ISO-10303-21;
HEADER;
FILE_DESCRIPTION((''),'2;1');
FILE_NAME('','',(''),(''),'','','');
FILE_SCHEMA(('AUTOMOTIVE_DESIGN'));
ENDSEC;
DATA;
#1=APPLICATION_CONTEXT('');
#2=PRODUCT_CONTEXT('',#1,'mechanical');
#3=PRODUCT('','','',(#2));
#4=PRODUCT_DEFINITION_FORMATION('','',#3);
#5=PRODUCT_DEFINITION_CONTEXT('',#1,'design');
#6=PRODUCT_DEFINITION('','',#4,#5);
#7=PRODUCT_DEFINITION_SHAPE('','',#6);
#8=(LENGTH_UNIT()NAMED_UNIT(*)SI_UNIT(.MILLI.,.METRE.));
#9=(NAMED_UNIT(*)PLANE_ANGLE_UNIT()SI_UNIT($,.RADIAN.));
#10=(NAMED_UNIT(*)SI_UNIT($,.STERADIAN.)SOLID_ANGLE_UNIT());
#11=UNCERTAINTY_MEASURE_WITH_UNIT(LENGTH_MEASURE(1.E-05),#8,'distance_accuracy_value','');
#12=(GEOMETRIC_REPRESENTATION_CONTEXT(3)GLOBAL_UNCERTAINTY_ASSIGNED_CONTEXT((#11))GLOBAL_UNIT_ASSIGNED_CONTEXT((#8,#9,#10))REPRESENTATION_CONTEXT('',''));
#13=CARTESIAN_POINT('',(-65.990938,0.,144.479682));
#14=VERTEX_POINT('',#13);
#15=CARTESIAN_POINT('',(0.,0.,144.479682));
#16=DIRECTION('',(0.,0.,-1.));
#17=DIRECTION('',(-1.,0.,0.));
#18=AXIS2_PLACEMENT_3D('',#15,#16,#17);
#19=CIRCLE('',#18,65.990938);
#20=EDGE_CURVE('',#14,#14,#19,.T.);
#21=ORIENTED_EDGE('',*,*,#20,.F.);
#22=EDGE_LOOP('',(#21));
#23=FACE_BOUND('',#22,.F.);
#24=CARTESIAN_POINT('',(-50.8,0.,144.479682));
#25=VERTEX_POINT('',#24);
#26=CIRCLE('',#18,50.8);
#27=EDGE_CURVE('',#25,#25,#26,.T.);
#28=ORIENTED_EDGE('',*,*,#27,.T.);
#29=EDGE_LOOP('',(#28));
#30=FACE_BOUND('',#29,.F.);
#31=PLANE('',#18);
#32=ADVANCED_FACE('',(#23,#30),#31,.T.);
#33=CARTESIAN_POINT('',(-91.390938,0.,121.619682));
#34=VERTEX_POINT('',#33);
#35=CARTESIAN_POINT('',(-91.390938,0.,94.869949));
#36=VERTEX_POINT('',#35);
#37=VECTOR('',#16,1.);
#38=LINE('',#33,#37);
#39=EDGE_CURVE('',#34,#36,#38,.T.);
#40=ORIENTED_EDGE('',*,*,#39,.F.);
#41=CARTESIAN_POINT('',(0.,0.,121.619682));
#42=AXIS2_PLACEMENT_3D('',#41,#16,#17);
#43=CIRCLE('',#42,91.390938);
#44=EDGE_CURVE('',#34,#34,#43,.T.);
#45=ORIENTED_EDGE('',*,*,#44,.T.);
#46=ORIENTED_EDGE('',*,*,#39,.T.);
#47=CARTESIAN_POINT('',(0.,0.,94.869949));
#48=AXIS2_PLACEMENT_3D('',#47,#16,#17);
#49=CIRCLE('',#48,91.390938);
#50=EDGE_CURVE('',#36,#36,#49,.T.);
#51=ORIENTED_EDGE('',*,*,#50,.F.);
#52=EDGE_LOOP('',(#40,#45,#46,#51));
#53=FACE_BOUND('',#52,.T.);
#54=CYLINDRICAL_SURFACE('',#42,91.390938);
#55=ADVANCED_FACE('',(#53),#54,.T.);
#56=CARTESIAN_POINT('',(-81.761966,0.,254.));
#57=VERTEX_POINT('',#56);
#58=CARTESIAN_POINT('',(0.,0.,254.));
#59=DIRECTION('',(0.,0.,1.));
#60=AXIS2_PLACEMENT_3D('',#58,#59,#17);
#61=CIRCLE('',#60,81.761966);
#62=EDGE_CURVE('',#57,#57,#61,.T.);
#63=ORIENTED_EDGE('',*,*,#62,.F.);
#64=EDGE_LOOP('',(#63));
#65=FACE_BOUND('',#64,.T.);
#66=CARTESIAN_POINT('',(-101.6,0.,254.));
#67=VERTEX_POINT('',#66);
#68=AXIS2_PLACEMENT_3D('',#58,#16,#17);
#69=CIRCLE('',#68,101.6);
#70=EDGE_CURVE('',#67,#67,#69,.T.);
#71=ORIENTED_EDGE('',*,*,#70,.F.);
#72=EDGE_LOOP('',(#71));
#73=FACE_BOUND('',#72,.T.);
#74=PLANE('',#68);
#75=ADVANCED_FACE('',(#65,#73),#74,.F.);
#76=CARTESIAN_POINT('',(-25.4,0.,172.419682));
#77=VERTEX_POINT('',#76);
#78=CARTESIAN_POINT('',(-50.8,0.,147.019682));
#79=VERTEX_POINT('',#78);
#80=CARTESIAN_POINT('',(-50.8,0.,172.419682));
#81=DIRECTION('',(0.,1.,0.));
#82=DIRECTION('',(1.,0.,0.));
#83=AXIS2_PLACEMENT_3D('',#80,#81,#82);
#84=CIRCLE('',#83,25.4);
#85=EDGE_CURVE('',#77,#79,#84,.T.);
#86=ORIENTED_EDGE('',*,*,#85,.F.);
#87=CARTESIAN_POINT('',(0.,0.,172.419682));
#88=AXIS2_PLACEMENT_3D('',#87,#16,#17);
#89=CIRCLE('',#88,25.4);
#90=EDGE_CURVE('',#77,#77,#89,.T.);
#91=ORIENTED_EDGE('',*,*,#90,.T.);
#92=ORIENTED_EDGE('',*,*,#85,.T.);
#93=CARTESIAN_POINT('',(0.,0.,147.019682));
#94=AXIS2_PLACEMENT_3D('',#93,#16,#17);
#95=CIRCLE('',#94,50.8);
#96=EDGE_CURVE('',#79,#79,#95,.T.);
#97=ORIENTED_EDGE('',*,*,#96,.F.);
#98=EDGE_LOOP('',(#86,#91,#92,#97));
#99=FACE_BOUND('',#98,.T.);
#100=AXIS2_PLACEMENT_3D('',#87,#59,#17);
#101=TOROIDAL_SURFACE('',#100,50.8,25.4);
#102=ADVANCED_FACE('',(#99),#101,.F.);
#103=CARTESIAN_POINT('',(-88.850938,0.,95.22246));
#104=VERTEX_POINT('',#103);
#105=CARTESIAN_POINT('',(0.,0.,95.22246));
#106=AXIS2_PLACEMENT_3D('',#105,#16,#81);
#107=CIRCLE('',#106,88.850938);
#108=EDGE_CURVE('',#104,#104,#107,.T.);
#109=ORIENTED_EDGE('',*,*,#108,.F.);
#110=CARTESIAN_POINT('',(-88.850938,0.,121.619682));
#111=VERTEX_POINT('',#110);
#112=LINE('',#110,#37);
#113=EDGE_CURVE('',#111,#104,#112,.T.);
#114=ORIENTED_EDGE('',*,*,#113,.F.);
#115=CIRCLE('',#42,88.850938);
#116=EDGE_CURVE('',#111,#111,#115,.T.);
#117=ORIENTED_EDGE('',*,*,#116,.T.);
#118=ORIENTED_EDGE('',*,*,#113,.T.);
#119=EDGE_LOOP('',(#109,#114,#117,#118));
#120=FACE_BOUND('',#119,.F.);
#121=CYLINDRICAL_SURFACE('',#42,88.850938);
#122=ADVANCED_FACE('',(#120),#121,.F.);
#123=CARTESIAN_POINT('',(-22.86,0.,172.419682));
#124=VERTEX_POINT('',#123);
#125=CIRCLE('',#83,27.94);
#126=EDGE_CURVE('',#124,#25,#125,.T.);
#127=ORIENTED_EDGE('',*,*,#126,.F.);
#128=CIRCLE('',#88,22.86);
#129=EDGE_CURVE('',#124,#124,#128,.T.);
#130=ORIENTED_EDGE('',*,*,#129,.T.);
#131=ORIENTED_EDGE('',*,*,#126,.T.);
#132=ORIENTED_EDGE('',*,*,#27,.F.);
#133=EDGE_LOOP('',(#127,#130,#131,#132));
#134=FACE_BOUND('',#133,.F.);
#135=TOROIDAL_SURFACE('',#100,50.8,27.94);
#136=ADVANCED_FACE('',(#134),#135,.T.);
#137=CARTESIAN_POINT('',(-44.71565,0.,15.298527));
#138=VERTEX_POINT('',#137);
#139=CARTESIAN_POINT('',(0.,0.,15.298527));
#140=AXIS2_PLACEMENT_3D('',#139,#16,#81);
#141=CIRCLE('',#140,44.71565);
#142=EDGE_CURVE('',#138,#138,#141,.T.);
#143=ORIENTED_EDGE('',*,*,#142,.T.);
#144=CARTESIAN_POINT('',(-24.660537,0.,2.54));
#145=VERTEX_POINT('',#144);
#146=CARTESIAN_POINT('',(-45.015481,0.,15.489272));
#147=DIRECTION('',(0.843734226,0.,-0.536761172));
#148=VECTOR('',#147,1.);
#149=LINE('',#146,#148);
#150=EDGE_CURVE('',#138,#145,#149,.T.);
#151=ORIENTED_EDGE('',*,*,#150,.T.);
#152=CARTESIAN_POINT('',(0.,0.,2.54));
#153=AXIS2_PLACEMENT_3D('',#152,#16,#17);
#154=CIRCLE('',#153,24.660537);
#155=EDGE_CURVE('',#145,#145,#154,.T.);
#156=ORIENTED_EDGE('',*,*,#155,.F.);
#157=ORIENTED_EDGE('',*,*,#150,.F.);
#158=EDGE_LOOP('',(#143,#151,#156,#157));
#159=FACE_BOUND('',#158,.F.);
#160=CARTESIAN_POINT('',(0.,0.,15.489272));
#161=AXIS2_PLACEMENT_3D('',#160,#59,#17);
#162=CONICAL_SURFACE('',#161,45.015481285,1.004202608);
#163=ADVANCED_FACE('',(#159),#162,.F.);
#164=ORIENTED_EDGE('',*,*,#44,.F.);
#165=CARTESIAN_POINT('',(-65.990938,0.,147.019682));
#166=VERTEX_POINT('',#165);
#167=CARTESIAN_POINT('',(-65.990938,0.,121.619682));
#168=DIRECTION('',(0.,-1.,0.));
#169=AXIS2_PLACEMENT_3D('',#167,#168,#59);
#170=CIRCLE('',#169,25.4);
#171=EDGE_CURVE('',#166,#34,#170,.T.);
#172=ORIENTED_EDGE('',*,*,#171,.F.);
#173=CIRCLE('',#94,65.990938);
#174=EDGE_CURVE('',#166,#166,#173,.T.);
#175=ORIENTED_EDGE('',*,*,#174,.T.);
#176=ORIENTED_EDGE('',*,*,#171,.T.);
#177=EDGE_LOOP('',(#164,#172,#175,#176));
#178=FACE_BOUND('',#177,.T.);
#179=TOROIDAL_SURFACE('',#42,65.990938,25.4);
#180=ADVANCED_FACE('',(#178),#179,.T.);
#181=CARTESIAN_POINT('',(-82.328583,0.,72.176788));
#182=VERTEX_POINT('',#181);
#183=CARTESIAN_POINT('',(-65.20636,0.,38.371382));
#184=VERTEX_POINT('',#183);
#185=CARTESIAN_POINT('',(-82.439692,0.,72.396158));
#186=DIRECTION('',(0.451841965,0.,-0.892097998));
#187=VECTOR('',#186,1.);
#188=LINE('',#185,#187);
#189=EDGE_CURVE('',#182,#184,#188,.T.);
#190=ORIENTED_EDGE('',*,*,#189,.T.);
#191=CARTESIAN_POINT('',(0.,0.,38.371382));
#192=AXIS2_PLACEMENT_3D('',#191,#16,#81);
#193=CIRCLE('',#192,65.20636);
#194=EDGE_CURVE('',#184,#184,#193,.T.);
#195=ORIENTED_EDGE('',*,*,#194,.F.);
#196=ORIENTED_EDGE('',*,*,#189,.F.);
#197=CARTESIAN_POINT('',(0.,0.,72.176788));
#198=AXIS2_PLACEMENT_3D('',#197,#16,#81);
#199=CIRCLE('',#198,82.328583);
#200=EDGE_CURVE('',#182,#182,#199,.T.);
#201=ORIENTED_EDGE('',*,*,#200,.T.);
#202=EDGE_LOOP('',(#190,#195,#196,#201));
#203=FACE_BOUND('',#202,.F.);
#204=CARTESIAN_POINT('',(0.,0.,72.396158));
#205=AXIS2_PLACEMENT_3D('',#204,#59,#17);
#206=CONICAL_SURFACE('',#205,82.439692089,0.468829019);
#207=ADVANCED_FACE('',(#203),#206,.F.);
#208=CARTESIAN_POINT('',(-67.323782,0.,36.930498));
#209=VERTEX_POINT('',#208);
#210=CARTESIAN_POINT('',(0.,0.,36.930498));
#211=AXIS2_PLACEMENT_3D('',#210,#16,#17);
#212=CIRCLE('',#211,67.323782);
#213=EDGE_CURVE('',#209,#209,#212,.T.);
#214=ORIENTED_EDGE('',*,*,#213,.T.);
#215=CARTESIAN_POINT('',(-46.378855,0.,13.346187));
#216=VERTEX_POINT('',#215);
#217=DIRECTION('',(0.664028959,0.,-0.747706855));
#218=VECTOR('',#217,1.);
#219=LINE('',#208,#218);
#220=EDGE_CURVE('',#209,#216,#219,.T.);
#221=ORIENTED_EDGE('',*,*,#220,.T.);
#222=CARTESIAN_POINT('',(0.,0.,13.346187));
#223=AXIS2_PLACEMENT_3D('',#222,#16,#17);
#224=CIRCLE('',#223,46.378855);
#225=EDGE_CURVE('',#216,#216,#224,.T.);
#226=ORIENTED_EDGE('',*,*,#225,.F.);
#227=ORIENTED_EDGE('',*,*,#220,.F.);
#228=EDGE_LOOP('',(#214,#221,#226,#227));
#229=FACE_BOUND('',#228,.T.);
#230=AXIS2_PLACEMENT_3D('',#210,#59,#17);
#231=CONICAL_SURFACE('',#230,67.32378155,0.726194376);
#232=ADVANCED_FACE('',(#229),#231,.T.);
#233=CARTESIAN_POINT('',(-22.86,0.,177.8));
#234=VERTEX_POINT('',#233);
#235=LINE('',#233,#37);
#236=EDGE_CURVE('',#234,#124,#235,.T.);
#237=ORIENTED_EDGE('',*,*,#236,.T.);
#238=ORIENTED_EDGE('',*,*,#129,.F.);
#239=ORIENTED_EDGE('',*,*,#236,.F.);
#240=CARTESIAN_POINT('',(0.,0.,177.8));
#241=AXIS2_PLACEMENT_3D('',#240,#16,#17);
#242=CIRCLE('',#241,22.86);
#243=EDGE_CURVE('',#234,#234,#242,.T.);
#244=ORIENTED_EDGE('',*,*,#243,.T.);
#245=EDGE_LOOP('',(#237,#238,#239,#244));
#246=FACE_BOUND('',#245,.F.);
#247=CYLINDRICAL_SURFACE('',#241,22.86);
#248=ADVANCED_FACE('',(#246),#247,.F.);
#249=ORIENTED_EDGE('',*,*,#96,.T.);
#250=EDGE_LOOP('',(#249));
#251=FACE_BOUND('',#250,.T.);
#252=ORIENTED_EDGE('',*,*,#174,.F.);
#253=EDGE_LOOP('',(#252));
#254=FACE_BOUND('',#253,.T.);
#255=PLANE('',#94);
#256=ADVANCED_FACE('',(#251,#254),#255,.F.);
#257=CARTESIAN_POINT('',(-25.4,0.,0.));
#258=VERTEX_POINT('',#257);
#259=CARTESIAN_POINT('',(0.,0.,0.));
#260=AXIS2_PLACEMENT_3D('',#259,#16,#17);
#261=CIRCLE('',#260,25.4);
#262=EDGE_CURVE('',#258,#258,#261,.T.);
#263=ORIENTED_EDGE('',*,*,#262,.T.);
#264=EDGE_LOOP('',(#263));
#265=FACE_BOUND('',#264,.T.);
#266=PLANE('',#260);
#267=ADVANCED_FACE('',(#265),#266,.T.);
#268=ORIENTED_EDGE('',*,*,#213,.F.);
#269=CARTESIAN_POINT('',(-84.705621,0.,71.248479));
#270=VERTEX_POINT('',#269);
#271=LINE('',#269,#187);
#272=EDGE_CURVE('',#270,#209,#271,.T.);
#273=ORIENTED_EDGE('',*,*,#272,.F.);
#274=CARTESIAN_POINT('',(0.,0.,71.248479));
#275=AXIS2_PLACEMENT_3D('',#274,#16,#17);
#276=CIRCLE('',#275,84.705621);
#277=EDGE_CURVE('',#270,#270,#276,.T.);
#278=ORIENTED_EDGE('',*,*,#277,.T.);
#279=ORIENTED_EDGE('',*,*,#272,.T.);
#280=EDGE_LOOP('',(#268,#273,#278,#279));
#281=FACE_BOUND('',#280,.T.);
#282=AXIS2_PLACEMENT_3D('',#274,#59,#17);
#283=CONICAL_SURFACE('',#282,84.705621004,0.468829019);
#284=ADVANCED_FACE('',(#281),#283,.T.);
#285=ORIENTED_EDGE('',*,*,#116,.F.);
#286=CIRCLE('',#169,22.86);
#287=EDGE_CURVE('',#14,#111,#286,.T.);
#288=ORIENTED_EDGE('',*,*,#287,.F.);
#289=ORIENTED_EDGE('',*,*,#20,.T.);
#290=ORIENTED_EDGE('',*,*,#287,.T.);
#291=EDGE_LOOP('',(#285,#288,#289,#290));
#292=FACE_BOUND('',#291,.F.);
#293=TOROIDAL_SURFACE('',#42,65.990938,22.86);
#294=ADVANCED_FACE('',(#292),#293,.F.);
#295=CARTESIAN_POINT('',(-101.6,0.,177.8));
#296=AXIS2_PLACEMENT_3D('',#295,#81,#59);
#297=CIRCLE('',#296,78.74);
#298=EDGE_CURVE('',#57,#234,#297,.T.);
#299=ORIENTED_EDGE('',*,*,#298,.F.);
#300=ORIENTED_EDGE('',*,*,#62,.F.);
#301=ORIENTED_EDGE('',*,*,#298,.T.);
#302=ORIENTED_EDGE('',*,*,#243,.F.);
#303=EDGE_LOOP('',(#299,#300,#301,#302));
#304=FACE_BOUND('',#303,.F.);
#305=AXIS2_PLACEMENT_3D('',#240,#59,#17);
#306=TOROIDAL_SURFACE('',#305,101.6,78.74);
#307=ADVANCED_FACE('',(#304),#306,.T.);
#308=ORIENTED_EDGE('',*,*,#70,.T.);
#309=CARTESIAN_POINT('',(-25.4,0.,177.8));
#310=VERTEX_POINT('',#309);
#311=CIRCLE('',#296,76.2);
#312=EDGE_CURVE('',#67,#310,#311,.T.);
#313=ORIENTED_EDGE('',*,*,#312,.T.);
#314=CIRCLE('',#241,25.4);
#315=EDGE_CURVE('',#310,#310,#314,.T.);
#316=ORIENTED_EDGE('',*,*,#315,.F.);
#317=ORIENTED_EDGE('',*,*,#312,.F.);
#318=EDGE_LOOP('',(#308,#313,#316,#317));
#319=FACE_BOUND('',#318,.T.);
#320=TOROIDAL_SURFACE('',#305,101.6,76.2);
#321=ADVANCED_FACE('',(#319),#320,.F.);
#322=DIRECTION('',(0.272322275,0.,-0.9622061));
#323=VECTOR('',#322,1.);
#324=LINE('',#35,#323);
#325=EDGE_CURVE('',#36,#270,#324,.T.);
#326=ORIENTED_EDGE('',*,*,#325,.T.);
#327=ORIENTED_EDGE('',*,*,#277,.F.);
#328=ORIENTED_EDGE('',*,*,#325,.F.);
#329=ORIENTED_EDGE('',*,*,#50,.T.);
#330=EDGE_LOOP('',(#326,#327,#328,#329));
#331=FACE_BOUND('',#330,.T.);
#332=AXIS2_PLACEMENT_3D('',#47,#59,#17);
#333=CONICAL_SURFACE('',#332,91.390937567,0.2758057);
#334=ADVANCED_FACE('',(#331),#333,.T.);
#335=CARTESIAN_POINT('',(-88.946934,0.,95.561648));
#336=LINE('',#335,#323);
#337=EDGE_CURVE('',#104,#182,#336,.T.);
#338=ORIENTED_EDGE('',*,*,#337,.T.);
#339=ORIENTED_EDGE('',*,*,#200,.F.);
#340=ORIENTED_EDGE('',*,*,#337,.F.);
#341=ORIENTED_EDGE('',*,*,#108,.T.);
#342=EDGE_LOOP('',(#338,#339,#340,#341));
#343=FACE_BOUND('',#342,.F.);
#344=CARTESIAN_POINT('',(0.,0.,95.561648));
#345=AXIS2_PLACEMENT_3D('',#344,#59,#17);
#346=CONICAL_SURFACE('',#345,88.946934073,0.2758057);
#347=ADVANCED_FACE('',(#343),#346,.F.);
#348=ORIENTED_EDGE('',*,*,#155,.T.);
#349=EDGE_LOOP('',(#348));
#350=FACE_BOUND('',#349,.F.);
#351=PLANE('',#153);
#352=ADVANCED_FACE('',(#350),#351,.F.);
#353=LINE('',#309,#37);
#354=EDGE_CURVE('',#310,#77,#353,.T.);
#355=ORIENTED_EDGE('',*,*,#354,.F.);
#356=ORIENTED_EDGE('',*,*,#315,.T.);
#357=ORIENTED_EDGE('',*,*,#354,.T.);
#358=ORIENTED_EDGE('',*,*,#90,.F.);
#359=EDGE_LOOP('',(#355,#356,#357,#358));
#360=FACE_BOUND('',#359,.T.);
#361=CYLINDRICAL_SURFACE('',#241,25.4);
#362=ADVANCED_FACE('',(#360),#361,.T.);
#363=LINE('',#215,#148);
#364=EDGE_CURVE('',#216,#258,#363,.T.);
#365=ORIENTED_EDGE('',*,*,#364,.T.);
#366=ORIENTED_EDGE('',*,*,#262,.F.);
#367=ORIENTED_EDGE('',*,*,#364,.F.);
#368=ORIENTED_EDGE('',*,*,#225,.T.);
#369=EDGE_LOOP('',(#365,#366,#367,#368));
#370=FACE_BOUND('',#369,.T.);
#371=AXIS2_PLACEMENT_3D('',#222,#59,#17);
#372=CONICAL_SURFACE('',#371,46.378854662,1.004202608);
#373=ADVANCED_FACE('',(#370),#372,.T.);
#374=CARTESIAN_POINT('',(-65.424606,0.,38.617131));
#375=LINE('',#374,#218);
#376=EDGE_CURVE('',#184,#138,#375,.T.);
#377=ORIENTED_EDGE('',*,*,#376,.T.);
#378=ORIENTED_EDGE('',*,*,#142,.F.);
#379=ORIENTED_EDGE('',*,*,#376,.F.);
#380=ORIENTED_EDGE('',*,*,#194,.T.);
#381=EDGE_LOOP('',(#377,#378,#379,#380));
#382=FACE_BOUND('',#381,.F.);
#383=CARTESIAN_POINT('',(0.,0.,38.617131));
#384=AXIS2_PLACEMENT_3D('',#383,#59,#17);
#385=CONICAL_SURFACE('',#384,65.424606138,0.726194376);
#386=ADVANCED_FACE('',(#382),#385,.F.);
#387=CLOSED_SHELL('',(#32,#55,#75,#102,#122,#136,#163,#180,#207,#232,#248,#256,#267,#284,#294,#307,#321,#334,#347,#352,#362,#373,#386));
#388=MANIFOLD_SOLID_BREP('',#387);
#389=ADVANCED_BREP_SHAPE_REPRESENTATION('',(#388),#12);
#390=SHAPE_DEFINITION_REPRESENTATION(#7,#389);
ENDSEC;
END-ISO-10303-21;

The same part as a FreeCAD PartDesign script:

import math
import FreeCAD as App
import Part
import Sketcher
from FreeCAD import Vector
Q = App.Units.Quantity


def faces_at(feature, points):
    """Names of the faces that lie closest to the given points."""
    faces = feature.Shape.Faces
    near = lambda p: min(range(len(faces)), key=lambda i: faces[i].distToShape(Part.Vertex(*p))[0])
    return sorted({f"Face{near(p) + 1}" for p in points})

doc = App.newDocument("Part")
body = doc.addObject("PartDesign::Body", "Body")

sketch1 = body.newObject("Sketcher::SketchObject", "Sketch")
sketch1.AttachmentSupport = (doc.getObject("XZ_Plane"), [""])
sketch1.MapMode = "FlatFace"
sketch1.addGeometry(Part.LineSegment(Vector(-46.378855, 13.346187, 0), Vector(-25.4, 0, 0)), False)
sketch1.addGeometry(Part.LineSegment(Vector(-25.4, 0, 0), Vector(0, 0, 0)), False)
sketch1.addGeometry(Part.LineSegment(Vector(0, 0, 0), Vector(0, 254, 0)), False)
sketch1.addGeometry(Part.LineSegment(Vector(0, 254, 0), Vector(-101.6, 254, 0)), False)
sketch1.addGeometry(Part.ArcOfCircle(Part.Circle(Vector(-101.6, 177.8, 0), Vector(0, 0, 1), 76.2), math.radians(0), math.radians(90)), False)
sketch1.addGeometry(Part.LineSegment(Vector(-25.4, 177.8, 0), Vector(-25.4, 172.419682, 0)), False)
sketch1.addGeometry(Part.ArcOfCircle(Part.Circle(Vector(-50.8, 172.419682, 0), Vector(0, 0, 1), 25.4), math.radians(-90), math.radians(0)), False)
sketch1.addGeometry(Part.LineSegment(Vector(-50.8, 147.019682, 0), Vector(-65.990938, 147.019682, 0)), False)
sketch1.addGeometry(Part.ArcOfCircle(Part.Circle(Vector(-65.990938, 121.619682, 0), Vector(0, 0, 1), 25.4), math.radians(90), math.radians(180)), False)
sketch1.addGeometry(Part.LineSegment(Vector(-91.390938, 121.619682, 0), Vector(-91.390938, 94.869949, 0)), False)
sketch1.addGeometry(Part.LineSegment(Vector(-91.390938, 94.869949, 0), Vector(-84.705621, 71.248479, 0)), False)
sketch1.addGeometry(Part.LineSegment(Vector(-84.705621, 71.248479, 0), Vector(-67.323782, 36.930498, 0)), False)
sketch1.addGeometry(Part.LineSegment(Vector(-67.323782, 36.930498, 0), Vector(-46.378855, 13.346187, 0)), False)
sketch1.addConstraint(Sketcher.Constraint("Coincident", 0, 2, 1, 1))
sketch1.addConstraint(Sketcher.Constraint("Coincident", 1, 2, 2, 1))
sketch1.addConstraint(Sketcher.Constraint("Coincident", 2, 2, 3, 1))
sketch1.addConstraint(Sketcher.Constraint("Tangent", 3, 2, 4, 2))
sketch1.addConstraint(Sketcher.Constraint("Tangent", 4, 1, 5, 1))
sketch1.addConstraint(Sketcher.Constraint("Tangent", 5, 2, 6, 2))
sketch1.addConstraint(Sketcher.Constraint("Tangent", 6, 1, 7, 1))
sketch1.addConstraint(Sketcher.Constraint("Tangent", 7, 2, 8, 1))
sketch1.addConstraint(Sketcher.Constraint("Tangent", 8, 2, 9, 1))
sketch1.addConstraint(Sketcher.Constraint("Coincident", 9, 2, 10, 1))
sketch1.addConstraint(Sketcher.Constraint("Coincident", 10, 2, 11, 1))
sketch1.addConstraint(Sketcher.Constraint("Coincident", 11, 2, 12, 1))
sketch1.addConstraint(Sketcher.Constraint("Coincident", 12, 2, 0, 1))
sketch1.addConstraint(Sketcher.Constraint("Horizontal", 1))
sketch1.addConstraint(Sketcher.Constraint("Vertical", 2))
sketch1.addConstraint(Sketcher.Constraint("Horizontal", 3))
sketch1.addConstraint(Sketcher.Constraint("Vertical", 5))
sketch1.addConstraint(Sketcher.Constraint("Horizontal", 7))
sketch1.addConstraint(Sketcher.Constraint("Vertical", 9))
sketch1.addConstraint(Sketcher.Constraint("Coincident", 1, 2, -1, 1))
sketch1.addConstraint(Sketcher.Constraint("Equal", 6, 8))
sketch1.addConstraint(Sketcher.Constraint("Vertical", 0, 2, 4, 1))
sketch1.addConstraint(Sketcher.Constraint("Radius", 4, Q("3 in")))
sketch1.addConstraint(Sketcher.Constraint("Radius", 6, Q("1 in")))
sketch1.addConstraint(Sketcher.Constraint("DistanceX", 1, 1, 1, 2, Q("1 in")))
sketch1.addConstraint(Sketcher.Constraint("DistanceY", 2, 1, 2, 2, Q("10 in")))
sketch1.addConstraint(Sketcher.Constraint("Distance", 12, Q("31.542189 mm")))
sketch1.addConstraint(Sketcher.Constraint("DistanceX", 7, 2, 7, 1, Q("15.190938 mm")))
sketch1.addConstraint(Sketcher.Constraint("DistanceY", 5, 2, 5, 1, Q("5.380318 mm")))
sketch1.addConstraint(Sketcher.Constraint("DistanceY", 9, 2, 9, 1, Q("26.749733 mm")))
sketch1.addConstraint(Sketcher.Constraint("DistanceX", 10, 2, -1, 1, Q("84.705621 mm")))
sketch1.addConstraint(Sketcher.Constraint("DistanceY", -1, 1, 10, 2, Q("71.248479 mm")))
sketch1.addConstraint(Sketcher.Constraint("DistanceX", 11, 2, -1, 1, Q("67.323782 mm")))
sketch1.addConstraint(Sketcher.Constraint("DistanceY", 11, 2, 10, 2, Q("34.317981 mm")))
sketch1.addConstraint(Sketcher.Constraint("DistanceY", 12, 2, 11, 2, Q("23.584311 mm")))
revolution = body.newObject("PartDesign::Revolution", "Revolution")
revolution.Profile = sketch1
revolution.ReferenceAxis = (sketch1, ["V_Axis"])
revolution.Angle = 360
doc.recompute()

thickness = body.newObject("PartDesign::Thickness", "Thickness")
thickness.Base = (revolution, faces_at(revolution, [(0, 0, 254)]))
thickness.Value = Q("0.1 in")
thickness.Reversed = True
thickness.Join = "Arc"

doc.recompute()
